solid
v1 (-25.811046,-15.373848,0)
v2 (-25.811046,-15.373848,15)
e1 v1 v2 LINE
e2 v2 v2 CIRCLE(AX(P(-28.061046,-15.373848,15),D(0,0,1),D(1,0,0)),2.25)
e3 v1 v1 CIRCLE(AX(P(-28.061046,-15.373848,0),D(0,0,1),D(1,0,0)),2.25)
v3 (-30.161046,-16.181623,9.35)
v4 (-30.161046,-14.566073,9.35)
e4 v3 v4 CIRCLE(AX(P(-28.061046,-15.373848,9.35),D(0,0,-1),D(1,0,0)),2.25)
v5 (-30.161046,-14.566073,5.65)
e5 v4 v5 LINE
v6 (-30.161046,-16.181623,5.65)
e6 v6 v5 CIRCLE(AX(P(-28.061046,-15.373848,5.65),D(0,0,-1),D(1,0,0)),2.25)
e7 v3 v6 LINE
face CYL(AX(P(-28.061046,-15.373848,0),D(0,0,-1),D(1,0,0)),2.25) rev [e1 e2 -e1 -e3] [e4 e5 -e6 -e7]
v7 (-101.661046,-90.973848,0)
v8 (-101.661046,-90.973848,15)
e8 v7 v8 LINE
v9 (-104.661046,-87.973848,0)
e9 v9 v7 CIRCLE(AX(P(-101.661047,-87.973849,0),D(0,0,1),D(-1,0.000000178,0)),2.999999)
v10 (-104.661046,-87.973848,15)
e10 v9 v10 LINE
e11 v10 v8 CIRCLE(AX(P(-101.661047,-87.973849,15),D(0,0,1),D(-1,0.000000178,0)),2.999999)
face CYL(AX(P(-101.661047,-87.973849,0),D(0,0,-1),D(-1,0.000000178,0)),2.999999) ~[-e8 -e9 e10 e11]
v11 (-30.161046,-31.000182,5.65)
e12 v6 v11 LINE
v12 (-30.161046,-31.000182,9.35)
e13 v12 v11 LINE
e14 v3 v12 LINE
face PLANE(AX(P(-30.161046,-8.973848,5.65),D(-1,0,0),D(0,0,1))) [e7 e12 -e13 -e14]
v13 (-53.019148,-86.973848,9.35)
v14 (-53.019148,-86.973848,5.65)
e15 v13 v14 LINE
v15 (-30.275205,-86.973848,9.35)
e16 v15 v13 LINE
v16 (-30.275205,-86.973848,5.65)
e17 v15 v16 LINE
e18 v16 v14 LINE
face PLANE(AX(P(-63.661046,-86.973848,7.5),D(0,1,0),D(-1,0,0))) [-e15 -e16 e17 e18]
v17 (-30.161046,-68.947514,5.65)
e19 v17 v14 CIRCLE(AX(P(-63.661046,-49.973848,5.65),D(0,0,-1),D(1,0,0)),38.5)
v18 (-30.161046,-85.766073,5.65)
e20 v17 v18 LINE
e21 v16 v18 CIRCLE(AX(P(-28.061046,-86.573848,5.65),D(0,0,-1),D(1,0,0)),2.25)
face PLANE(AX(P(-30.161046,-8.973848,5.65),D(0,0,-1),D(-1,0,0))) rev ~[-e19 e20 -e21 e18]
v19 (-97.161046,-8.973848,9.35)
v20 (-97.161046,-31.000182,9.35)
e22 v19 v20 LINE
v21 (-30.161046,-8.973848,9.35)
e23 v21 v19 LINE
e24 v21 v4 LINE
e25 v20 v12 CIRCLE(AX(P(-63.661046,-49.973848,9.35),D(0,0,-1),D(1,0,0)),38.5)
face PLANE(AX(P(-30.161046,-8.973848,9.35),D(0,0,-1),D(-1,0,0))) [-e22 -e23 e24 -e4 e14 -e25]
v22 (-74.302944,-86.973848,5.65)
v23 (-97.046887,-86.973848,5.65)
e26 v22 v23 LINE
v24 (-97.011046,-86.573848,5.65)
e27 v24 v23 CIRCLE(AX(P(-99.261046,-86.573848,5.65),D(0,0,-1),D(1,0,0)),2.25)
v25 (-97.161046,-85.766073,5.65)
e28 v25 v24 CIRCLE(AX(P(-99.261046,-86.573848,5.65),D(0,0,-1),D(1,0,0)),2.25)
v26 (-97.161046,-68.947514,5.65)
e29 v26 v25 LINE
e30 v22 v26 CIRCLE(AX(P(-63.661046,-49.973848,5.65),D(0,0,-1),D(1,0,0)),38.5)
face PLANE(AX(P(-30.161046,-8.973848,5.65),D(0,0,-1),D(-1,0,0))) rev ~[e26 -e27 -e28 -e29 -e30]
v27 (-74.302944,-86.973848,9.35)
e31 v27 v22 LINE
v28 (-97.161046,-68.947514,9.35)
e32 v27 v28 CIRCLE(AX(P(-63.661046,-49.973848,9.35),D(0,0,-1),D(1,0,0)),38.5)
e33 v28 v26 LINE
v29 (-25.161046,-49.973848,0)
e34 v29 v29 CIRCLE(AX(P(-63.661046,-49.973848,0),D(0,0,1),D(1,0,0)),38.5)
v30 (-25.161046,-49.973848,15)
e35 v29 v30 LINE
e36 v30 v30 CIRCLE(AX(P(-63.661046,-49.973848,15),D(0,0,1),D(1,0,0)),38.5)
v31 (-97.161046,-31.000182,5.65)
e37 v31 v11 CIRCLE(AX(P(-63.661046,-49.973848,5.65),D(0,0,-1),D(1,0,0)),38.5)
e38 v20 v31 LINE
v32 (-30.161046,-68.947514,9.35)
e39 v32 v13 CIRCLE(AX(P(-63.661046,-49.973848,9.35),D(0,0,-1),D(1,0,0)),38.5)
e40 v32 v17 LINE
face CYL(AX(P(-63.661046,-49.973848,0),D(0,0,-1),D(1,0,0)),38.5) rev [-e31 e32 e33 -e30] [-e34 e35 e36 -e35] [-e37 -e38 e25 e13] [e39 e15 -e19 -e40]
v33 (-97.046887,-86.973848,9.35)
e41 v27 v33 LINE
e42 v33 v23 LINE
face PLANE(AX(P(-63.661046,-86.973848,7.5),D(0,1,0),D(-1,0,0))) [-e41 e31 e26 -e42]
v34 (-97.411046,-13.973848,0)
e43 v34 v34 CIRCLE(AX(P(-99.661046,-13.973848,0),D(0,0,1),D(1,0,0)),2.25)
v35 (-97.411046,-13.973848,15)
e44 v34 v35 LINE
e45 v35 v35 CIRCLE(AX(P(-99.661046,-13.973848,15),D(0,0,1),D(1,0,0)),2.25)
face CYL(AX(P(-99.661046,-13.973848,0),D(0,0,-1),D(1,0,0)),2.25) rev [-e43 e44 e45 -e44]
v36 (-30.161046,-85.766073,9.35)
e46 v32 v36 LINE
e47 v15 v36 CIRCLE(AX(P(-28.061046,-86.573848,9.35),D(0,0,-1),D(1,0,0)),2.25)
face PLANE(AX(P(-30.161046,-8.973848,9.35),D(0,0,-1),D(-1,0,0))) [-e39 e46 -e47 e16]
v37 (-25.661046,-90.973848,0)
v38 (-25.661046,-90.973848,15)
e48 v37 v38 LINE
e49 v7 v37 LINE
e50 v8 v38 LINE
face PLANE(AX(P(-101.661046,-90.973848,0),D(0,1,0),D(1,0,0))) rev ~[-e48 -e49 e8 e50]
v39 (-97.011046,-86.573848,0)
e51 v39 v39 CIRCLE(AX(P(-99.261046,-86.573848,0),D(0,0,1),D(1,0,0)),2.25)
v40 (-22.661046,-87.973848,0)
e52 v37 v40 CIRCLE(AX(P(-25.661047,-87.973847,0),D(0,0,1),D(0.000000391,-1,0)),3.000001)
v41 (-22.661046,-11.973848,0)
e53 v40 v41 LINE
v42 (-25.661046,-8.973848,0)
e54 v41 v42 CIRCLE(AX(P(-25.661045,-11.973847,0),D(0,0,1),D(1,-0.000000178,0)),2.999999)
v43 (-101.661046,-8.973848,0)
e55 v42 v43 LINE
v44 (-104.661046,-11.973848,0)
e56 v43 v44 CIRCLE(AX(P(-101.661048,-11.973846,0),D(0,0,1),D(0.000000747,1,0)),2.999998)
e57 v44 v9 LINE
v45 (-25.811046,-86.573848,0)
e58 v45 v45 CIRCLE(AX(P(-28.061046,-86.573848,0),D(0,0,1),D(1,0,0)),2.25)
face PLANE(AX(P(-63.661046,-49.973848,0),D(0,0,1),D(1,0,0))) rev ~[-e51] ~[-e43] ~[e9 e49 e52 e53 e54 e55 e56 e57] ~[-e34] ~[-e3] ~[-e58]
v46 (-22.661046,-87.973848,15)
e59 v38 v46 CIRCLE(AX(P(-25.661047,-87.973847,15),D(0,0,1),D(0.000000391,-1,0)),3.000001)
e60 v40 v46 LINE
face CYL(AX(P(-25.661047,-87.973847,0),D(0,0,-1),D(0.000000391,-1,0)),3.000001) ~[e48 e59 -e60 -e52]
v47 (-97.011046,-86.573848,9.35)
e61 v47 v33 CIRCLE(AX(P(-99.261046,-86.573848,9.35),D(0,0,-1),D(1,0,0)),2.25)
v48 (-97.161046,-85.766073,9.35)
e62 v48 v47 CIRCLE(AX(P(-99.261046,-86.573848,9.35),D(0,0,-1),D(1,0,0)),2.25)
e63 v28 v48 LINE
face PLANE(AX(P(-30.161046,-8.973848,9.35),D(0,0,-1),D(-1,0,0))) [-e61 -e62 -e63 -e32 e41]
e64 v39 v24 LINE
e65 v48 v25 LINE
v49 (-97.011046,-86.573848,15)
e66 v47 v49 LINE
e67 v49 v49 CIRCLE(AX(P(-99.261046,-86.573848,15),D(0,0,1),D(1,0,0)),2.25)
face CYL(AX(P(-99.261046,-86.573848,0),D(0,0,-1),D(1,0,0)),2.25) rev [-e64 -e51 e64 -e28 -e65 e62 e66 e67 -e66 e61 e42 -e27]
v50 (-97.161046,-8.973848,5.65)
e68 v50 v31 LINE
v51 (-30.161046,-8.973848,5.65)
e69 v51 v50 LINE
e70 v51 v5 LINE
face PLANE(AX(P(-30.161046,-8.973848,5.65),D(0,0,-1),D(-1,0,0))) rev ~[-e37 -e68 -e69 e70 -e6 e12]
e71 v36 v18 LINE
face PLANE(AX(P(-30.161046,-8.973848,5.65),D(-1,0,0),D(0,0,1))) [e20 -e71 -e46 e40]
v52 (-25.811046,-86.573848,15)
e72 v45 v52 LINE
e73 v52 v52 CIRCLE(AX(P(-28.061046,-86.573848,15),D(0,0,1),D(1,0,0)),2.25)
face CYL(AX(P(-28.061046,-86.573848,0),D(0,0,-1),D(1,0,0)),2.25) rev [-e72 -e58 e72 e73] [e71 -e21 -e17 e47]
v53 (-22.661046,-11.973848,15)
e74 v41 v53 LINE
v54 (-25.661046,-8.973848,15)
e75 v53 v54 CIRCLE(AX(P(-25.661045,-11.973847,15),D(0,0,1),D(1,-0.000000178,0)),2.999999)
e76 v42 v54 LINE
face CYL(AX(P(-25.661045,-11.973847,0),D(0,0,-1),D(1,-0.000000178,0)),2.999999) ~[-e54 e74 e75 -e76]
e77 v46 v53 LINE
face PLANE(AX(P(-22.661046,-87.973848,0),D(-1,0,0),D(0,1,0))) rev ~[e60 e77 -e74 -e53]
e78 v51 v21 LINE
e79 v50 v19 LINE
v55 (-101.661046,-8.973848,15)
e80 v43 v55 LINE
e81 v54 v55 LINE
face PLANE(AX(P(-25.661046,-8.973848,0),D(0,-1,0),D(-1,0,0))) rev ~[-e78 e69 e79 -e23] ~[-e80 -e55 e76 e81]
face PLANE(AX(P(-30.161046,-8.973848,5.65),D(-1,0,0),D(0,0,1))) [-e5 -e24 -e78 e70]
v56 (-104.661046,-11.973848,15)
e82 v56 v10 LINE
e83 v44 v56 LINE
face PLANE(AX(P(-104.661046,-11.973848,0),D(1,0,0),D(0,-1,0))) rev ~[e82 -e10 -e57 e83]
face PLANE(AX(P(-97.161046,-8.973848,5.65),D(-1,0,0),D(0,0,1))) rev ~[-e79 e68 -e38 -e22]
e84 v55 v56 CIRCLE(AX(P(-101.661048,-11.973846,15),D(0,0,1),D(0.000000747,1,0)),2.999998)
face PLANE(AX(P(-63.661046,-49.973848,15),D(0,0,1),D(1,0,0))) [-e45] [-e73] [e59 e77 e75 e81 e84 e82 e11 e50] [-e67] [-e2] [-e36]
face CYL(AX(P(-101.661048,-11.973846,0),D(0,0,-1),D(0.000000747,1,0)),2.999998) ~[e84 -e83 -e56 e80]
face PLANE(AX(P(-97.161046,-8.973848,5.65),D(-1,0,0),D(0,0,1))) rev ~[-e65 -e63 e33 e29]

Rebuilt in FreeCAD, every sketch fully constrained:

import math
import FreeCAD as App
import Part
import Sketcher

V = App.Vector
Q = App.Units.Quantity

doc = App.newDocument("Part")
body = doc.addObject("PartDesign::Body", "Body")

# Sketch on XY plane
sketch1 = body.newObject("Sketcher::SketchObject", "Sketch")
sketch1.AttachmentSupport = (doc.getObject("XY_Plane"), [""])
sketch1.MapMode = "FlatFace"
sketch1.addGeometry(Part.ArcOfCircle(Part.Circle(V(-25.7, -12, 0), V(0, 0, 1), 3), math.radians(0), math.radians(90)), False)
sketch1.addGeometry(Part.LineSegment(V(-25.7, -9, 0), V(-101.7, -9, 0)), False)
sketch1.addGeometry(Part.ArcOfCircle(Part.Circle(V(-101.7, -12, 0), V(0, 0, 1), 3), math.radians(90), math.radians(180)), False)
sketch1.addGeometry(Part.LineSegment(V(-104.7, -12, 0), V(-104.7, -88, 0)), False)
sketch1.addGeometry(Part.ArcOfCircle(Part.Circle(V(-101.7, -88, 0), V(0, 0, 1), 3), math.radians(180), math.radians(270)), False)
sketch1.addGeometry(Part.LineSegment(V(-101.7, -91, 0), V(-25.7, -91, 0)), False)
sketch1.addGeometry(Part.ArcOfCircle(Part.Circle(V(-25.7, -88, 0), V(0, 0, 1), 3), math.radians(-90), math.radians(0)), False)
sketch1.addGeometry(Part.LineSegment(V(-22.7, -88, 0), V(-22.7, -12, 0)), False)
sketch1.addGeometry(Part.Circle(V(-99.3, -86.6, 0), V(0, 0, 1), 2.2), False)
sketch1.addGeometry(Part.Circle(V(-28.1, -86.6, 0), V(0, 0, 1), 2.2), False)
sketch1.addGeometry(Part.Circle(V(-99.7, -14, 0), V(0, 0, 1), 2.2), False)
sketch1.addGeometry(Part.Circle(V(-63.7, -50, 0), V(0, 0, 1), 38.5), False)
sketch1.addGeometry(Part.Circle(V(-28.1, -15.4, 0), V(0, 0, 1), 2.2), False)
sketch1.addConstraint(Sketcher.Constraint("Tangent", 0, 2, 1, 1))
sketch1.addConstraint(Sketcher.Constraint("Tangent", 1, 2, 2, 1))
sketch1.addConstraint(Sketcher.Constraint("Tangent", 2, 2, 3, 1))
sketch1.addConstraint(Sketcher.Constraint("Tangent", 3, 2, 4, 1))
sketch1.addConstraint(Sketcher.Constraint("Tangent", 4, 2, 5, 1))
sketch1.addConstraint(Sketcher.Constraint("Tangent", 5, 2, 6, 1))
sketch1.addConstraint(Sketcher.Constraint("Tangent", 6, 2, 7, 1))
sketch1.addConstraint(Sketcher.Constraint("Tangent", 7, 2, 0, 1))
sketch1.addConstraint(Sketcher.Constraint("Horizontal", 1))
sketch1.addConstraint(Sketcher.Constraint("Vertical", 3))
sketch1.addConstraint(Sketcher.Constraint("Horizontal", 5))
sketch1.addConstraint(Sketcher.Constraint("Vertical", 7))
sketch1.addConstraint(Sketcher.Constraint("Equal", 0, 2))
sketch1.addConstraint(Sketcher.Constraint("Equal", 2, 4))
sketch1.addConstraint(Sketcher.Constraint("Equal", 4, 6))
sketch1.addConstraint(Sketcher.Constraint("Equal", 8, 9))
sketch1.addConstraint(Sketcher.Constraint("Equal", 9, 10))
sketch1.addConstraint(Sketcher.Constraint("Equal", 10, 12))
sketch1.addConstraint(Sketcher.Constraint("Horizontal", 8, 3, 9, 3))
sketch1.addConstraint(Sketcher.Constraint("Vertical", 9, 3, 12, 3))
sketch1.addConstraint(Sketcher.Constraint("Equal", 5, 3))
sketch1.addConstraint(Sketcher.Constraint("Diameter", 11, Q("77 mm")))
sketch1.addConstraint(Sketcher.Constraint("Radius", 0, Q("2.999999 mm")))
sketch1.addConstraint(Sketcher.Constraint("Diameter", 8, Q("4.5 mm")))
sketch1.addConstraint(Sketcher.Constraint("DistanceX", 1, 2, 1, 1, Q("76 mm")))
sketch1.addConstraint(Sketcher.Constraint("DistanceX", 10, 3, 0, 3, Q("74.000001 mm")))
sketch1.addConstraint(Sketcher.Constraint("DistanceY", 10, 3, 0, 3, Q("2.000001 mm")))
sketch1.addConstraint(Sketcher.Constraint("DistanceX", 10, 3, 11, 3, Q("36 mm")))
sketch1.addConstraint(Sketcher.Constraint("DistanceY", 11, 3, 10, 3, Q("36 mm")))
sketch1.addConstraint(Sketcher.Constraint("DistanceX", 4, 3, 8, 3, Q("2.400001 mm")))
sketch1.addConstraint(Sketcher.Constraint("DistanceY", 4, 3, 8, 3, Q("1.400001 mm")))
sketch1.addConstraint(Sketcher.Constraint("DistanceX", 9, 3, 6, 3, Q("2.399999 mm")))
sketch1.addConstraint(Sketcher.Constraint("DistanceY", 12, 3, 0, 3, Q("3.400001 mm")))
sketch1.addConstraint(Sketcher.Constraint("DistanceX", 2, 3, -1, 1, Q("101.661048 mm")))
sketch1.addConstraint(Sketcher.Constraint("DistanceY", 4, 3, -1, 1, Q("87.973849 mm")))
pad1 = body.newObject("PartDesign::Pad", "Pad")
pad1.Profile = sketch1
pad1.Length = 15

# Sketch on XZ plane
sketch2 = body.newObject("Sketcher::SketchObject", "Sketch001")
sketch2.AttachmentSupport = (doc.getObject("XZ_Plane"), [""])
sketch2.MapMode = "FlatFace"
sketch2.AttachmentOffset = App.Placement(V(0, 0, 8.973848), App.Rotation())
sketch2.addGeometry(Part.LineSegment(V(-30.2, 9.3, 0), V(-30.2, 5.7, 0)), False)
sketch2.addGeometry(Part.LineSegment(V(-30.2, 5.7, 0), V(-97.2, 5.7, 0)), False)
sketch2.addGeometry(Part.LineSegment(V(-97.2, 5.7, 0), V(-97.2, 9.3, 0)), False)
sketch2.addGeometry(Part.LineSegment(V(-97.2, 9.3, 0), V(-30.2, 9.3, 0)), False)
sketch2.addConstraint(Sketcher.Constraint("Coincident", 0, 2, 1, 1))
sketch2.addConstraint(Sketcher.Constraint("Coincident", 1, 2, 2, 1))
sketch2.addConstraint(Sketcher.Constraint("Coincident", 2, 2, 3, 1))
sketch2.addConstraint(Sketcher.Constraint("Coincident", 3, 2, 0, 1))
sketch2.addConstraint(Sketcher.Constraint("Vertical", 0))
sketch2.addConstraint(Sketcher.Constraint("Horizontal", 1))
sketch2.addConstraint(Sketcher.Constraint("Vertical", 2))
sketch2.addConstraint(Sketcher.Constraint("Horizontal", 3))
sketch2.addConstraint(Sketcher.Constraint("DistanceX", 1, 2, 1, 1, Q("67 mm")))
sketch2.addConstraint(Sketcher.Constraint("DistanceY", 0, 2, 0, 1, Q("3.7 mm")))
sketch2.addConstraint(Sketcher.Constraint("DistanceY", -1, 1, 0, 2, Q("5.65 mm")))
sketch2.addConstraint(Sketcher.Constraint("DistanceX", 0, 2, -1, 1, Q("30.161046 mm")))
pocket1 = body.newObject("PartDesign::Pocket", "Pocket")
pocket1.Profile = sketch2
pocket1.Length = 78
pocket1.Reversed = True

doc.recompute()
